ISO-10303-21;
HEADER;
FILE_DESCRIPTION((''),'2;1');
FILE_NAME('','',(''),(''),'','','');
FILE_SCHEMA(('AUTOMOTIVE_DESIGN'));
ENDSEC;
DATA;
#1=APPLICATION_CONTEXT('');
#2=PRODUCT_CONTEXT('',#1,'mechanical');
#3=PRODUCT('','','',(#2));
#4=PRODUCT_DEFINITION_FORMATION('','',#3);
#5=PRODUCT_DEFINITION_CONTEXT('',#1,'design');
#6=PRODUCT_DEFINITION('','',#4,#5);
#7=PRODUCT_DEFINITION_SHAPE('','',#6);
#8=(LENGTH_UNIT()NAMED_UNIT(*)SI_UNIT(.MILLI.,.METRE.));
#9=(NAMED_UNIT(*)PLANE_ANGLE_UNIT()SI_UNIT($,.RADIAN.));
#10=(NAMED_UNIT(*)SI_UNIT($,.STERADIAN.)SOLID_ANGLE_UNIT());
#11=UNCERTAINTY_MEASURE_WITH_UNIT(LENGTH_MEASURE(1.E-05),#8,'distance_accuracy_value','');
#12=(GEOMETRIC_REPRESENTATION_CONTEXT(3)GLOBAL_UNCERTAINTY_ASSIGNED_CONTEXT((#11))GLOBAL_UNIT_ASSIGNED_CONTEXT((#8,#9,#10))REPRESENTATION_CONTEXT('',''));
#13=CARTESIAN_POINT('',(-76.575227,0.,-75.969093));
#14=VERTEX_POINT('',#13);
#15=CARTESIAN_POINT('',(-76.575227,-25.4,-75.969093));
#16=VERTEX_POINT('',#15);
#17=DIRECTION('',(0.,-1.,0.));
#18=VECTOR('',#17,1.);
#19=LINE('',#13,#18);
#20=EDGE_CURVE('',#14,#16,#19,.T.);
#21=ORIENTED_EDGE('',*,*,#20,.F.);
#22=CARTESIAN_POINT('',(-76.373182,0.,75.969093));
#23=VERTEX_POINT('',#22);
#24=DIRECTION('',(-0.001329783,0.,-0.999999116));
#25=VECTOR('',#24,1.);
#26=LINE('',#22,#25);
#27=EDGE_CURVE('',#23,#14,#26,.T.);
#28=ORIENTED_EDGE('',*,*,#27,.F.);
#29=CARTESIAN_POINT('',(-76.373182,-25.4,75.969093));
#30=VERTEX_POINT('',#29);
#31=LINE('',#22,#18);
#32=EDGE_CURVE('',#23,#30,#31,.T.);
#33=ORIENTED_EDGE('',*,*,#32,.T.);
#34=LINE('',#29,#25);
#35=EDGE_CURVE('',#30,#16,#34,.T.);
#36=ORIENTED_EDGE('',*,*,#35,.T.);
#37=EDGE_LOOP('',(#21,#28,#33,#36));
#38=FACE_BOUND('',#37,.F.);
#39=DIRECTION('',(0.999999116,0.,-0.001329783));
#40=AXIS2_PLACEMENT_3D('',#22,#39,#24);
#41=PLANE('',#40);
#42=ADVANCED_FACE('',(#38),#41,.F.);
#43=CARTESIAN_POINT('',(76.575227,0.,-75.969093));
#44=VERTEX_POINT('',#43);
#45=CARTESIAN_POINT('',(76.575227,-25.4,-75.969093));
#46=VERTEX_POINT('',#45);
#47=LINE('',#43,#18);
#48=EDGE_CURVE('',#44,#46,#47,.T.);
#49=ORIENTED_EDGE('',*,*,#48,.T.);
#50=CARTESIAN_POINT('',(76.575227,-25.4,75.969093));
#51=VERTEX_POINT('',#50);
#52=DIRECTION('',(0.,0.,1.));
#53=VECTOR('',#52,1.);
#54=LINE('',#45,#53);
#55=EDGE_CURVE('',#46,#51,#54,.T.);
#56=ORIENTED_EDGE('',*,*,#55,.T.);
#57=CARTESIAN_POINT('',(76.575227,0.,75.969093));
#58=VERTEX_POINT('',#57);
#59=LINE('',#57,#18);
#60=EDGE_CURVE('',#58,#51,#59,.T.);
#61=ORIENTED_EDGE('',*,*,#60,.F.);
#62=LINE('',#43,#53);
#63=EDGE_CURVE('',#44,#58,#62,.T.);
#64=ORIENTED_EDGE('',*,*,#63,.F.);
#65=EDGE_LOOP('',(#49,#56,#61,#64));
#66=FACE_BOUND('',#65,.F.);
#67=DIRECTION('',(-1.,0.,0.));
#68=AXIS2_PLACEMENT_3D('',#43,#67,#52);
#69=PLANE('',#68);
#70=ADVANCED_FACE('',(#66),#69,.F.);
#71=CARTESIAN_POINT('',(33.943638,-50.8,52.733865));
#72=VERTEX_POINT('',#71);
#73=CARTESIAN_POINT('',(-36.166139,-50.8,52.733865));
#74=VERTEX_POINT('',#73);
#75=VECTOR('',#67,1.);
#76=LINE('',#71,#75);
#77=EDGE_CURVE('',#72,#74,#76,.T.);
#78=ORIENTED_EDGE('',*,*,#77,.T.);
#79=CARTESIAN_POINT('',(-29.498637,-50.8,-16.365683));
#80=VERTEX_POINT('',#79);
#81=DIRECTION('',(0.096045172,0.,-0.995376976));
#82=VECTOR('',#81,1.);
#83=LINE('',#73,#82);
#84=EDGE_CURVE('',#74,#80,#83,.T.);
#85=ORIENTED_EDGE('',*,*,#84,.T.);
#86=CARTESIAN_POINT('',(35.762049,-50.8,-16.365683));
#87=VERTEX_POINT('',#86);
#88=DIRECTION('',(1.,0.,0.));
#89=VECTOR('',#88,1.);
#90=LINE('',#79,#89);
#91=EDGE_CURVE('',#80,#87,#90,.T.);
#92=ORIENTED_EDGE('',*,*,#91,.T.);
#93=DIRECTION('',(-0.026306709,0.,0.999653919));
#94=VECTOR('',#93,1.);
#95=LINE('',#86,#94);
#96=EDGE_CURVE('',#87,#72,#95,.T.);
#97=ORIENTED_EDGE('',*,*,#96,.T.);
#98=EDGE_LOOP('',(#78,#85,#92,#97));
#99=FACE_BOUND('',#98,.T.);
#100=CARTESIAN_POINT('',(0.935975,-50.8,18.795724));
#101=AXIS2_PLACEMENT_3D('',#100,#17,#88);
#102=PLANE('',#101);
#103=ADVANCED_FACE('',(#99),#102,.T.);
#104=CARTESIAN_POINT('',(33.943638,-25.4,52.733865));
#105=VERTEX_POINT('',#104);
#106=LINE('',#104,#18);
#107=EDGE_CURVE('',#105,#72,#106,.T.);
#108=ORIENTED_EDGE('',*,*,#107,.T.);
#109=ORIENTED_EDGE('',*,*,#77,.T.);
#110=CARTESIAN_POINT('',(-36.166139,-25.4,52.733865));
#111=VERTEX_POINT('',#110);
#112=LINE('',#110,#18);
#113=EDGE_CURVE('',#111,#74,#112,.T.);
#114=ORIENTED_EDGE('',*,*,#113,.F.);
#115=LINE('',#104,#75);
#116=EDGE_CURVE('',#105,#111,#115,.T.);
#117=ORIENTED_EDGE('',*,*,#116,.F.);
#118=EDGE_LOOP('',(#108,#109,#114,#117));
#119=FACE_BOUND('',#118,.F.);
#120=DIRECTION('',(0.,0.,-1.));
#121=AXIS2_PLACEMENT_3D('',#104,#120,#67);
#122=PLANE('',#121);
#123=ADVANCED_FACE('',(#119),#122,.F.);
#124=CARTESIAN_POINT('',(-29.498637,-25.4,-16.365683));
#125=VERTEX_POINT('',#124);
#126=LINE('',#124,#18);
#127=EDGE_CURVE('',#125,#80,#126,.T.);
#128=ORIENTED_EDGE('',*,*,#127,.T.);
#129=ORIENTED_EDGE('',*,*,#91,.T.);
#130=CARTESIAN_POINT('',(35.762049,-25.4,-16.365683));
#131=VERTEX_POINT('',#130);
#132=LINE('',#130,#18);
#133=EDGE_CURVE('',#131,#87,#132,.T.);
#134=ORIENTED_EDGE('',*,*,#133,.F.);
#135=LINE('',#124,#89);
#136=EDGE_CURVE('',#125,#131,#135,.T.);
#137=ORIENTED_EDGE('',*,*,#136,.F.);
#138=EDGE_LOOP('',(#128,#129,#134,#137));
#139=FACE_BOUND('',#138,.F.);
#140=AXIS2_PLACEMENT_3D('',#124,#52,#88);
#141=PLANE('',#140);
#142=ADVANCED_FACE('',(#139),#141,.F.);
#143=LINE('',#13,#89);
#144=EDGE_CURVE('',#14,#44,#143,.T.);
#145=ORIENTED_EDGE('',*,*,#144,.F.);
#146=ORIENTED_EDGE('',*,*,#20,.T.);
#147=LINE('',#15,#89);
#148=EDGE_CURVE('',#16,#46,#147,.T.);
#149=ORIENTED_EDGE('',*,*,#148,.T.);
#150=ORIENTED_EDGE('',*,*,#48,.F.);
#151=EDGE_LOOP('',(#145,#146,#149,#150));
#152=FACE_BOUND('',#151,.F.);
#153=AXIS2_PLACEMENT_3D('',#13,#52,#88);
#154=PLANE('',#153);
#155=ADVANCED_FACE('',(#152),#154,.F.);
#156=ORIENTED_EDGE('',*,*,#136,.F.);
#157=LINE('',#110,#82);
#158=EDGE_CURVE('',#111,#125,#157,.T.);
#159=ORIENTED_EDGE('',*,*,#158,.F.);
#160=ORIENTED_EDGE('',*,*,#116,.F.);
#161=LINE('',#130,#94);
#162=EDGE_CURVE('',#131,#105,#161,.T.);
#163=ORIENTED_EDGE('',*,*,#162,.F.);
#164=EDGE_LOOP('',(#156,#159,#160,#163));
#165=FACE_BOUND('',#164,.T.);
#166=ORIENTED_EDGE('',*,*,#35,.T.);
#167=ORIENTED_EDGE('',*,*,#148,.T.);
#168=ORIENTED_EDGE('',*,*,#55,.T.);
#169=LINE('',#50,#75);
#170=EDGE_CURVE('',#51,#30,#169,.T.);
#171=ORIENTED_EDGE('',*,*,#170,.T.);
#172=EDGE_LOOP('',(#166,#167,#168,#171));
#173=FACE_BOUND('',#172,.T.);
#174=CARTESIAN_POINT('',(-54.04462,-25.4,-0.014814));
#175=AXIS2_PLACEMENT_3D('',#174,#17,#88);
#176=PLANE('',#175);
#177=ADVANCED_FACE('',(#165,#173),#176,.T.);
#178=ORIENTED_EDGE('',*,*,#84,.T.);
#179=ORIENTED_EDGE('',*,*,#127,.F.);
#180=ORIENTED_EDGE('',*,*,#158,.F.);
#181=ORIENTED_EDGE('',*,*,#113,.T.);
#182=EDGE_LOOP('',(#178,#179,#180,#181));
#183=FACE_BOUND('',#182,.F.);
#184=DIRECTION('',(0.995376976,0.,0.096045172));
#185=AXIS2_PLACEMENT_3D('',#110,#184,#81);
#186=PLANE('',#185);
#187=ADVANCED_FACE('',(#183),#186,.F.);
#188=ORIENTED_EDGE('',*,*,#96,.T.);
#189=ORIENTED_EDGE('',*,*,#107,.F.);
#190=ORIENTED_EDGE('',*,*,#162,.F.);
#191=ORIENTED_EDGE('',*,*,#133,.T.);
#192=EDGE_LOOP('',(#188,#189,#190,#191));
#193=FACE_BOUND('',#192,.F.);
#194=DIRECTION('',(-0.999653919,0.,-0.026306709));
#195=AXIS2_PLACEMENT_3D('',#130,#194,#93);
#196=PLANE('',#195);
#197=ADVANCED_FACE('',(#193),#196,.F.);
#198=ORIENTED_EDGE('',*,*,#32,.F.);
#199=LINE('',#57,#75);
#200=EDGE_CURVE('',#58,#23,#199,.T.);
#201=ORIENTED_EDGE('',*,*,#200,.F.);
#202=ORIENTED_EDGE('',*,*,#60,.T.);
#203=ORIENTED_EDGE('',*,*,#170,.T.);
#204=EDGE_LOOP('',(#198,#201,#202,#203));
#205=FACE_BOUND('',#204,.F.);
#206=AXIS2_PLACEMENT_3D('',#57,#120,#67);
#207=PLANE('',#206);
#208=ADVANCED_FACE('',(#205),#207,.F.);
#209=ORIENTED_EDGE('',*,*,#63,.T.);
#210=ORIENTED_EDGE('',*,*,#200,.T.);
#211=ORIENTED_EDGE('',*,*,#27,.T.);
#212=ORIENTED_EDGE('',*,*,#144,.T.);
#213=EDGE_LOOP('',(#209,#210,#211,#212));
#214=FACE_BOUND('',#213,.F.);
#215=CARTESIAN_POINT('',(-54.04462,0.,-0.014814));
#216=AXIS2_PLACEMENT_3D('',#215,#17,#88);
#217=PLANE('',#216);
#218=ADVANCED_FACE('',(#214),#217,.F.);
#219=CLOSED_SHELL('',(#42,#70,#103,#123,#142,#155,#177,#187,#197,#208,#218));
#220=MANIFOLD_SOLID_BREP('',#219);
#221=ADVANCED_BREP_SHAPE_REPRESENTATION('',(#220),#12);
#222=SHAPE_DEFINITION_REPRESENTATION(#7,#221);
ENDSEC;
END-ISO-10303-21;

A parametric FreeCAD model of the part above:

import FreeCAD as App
import Part
import Sketcher
from FreeCAD import Vector
Q = App.Units.Quantity


def add_polygon(sketch, points):
    """Adds a closed chain of lines whose ends are joined by coincident constraints."""
    first, n = sketch.GeometryCount, len(points)
    for a, b in zip(points, points[1:] + points[:1]):
        sketch.addGeometry(Part.LineSegment(App.Vector(*a, 0), App.Vector(*b, 0)), False)
    for i in range(n):
        sketch.addConstraint(Sketcher.Constraint("Coincident", first + i, 2, first + (i + 1) % n, 1))

doc = App.newDocument("Part")
body = doc.addObject("PartDesign::Body", "Body")

sketch1 = doc.addObject("Sketcher::SketchObject", "Sketch")
body.addObject(sketch1)
sketch1.AttachmentSupport = (doc.XZ_Plane, [""])
sketch1.MapMode = "FlatFace"
add_polygon(sketch1, [(-76, 76), (-77, -76), (77, -76), (77, 76)])
sketch1.addConstraint([
    Sketcher.Constraint("Horizontal", 1),
    Sketcher.Constraint("Vertical", 2),
    Sketcher.Constraint("Horizontal", 3),
    Sketcher.Constraint("Symmetric", 0, 2, 2, 2, -1, 1),
    Sketcher.Constraint("DistanceX", 3, 2, 3, 1, 152.948409),
    Sketcher.Constraint("Distance", 0, 151.93832),
    Sketcher.Constraint("DistanceX", 1, 1, 1, 2, 153.150454),
])
pad1 = doc.addObject("PartDesign::Pad", "Pad")
body.addObject(pad1)
pad1.Profile = sketch1
pad1.Length = Q("1 in")

sketch2 = doc.addObject("Sketcher::SketchObject", "Sketch001")
body.addObject(sketch2)
sketch2.AttachmentSupport = (doc.XZ_Plane, [""])
sketch2.MapMode = "FlatFace"
sketch2.AttachmentOffset = App.Placement(Vector(0, 0, 1 * 25.4), App.Rotation())
add_polygon(sketch2, [(33.943638, 52.733865), (-36.166139, 52.733865), (-29.498637, -16.365683), (35.762049, -16.365683)])
sketch2.addConstraint([
    Sketcher.Constraint("Horizontal", 0),
    Sketcher.Constraint("Horizontal", 2),
    Sketcher.Constraint("DistanceX", 0, 2, 1, 2, Q("0.2625001 in")),
    Sketcher.Constraint("Distance", 1, 69.420481),
    Sketcher.Constraint("Distance", 3, 69.12347),
    Sketcher.Constraint("DistanceX", 0, 2, 0, 1, 70.109777),
    Sketcher.Constraint("DistanceX", 0, 2, -1, 1, 36.166139),
    Sketcher.Constraint("DistanceY", -1, 1, 0, 2, 52.733865),
])
pad2 = doc.addObject("PartDesign::Pad", "Pad001")
body.addObject(pad2)
pad2.Profile = sketch2
pad2.Length = Q("1 in")

doc.recompute()
